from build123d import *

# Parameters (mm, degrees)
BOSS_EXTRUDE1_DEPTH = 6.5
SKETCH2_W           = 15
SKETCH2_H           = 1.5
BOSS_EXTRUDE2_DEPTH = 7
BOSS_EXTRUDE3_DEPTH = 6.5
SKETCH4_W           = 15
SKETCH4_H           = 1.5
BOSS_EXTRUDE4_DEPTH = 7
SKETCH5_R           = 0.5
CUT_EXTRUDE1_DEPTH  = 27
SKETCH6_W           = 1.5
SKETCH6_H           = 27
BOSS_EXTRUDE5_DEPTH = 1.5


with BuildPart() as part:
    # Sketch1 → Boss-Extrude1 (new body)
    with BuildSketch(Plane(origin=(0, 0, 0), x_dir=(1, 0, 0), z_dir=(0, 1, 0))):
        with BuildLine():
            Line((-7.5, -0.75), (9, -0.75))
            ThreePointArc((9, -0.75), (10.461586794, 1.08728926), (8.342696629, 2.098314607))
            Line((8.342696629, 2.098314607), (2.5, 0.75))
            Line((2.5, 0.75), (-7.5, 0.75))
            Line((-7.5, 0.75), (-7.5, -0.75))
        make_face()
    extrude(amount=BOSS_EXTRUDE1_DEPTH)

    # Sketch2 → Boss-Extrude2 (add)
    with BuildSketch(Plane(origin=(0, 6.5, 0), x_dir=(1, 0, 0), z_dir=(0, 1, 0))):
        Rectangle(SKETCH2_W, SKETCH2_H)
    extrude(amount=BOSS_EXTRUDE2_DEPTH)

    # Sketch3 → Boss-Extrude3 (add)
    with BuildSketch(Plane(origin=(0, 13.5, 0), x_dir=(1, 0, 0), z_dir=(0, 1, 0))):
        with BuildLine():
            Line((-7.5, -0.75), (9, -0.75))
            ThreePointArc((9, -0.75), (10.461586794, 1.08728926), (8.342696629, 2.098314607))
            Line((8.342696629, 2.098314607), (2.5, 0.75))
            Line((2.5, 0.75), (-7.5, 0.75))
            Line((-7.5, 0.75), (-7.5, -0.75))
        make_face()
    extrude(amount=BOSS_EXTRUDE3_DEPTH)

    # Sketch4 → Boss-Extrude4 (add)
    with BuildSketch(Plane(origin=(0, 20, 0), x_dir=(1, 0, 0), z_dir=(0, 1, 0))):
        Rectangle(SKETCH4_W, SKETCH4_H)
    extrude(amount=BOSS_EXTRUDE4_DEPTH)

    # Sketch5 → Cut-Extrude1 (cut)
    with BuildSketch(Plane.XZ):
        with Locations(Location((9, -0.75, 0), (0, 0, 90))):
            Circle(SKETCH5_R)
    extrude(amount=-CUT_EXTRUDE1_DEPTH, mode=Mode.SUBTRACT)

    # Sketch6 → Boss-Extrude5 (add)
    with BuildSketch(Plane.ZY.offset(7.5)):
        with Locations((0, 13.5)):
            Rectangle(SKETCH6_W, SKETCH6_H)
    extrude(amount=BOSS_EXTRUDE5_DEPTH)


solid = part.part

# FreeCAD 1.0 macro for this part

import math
import FreeCAD as App
import Part
import Sketcher

V = App.Vector
Q = App.Units.Quantity

doc = App.newDocument("Part")
body = doc.addObject("PartDesign::Body", "Body")

# Sketch on XZ plane
sketch1 = body.newObject("Sketcher::SketchObject", "Sketch")
sketch1.AttachmentSupport = (doc.getObject("XZ_Plane"), [""])
sketch1.MapMode = "FlatFace"
sketch1.addGeometry([
    Part.LineSegment(V(-7.5, 0.8, 0), V(9, 0.8, 0)),  # 0
    Part.ArcOfCircle(Part.Circle(V(9, -0.8, 0), V(0, 0, 1), 1.5), math.radians(-116), math.radians(90)),  # 1
    Part.LineSegment(V(8.3, -2.1, 0), V(2.5, -0.8, 0)),  # 2
    Part.LineSegment(V(2.5, -0.8, 0), V(-7.5, -0.8, 0)),  # 3
    Part.LineSegment(V(-7.5, -0.8, 0), V(-7.5, 0.8, 0)),  # 4
], False)
sketch1.addConstraint([
    Sketcher.Constraint("Tangent", 0, 2, 1, 2),
    Sketcher.Constraint("Coincident", 1, 1, 2, 1),
    Sketcher.Constraint("Coincident", 2, 2, 3, 1),
    Sketcher.Constraint("Coincident", 3, 2, 4, 1),
    Sketcher.Constraint("Coincident", 4, 2, 0, 1),
    Sketcher.Constraint("Horizontal", 0),
    Sketcher.Constraint("Horizontal", 3),
    Sketcher.Constraint("Vertical", 4),
    Sketcher.Constraint("Horizontal", 1, 3, 2, 2),
    Sketcher.Constraint("Radius", 1, Q("1.5 mm")),
    Sketcher.Constraint("DistanceX", 3, 2, 3, 1, Q("10 mm")),
    Sketcher.Constraint("DistanceX", 0, 1, 0, 2, Q("16.5 mm")),
    Sketcher.Constraint("DistanceX", -1, 1, 1, 3, Q("9 mm")),
    Sketcher.Constraint("DistanceY", 1, 3, -1, 1, Q("0.75 mm")),
    Sketcher.Constraint("Distance", 2, Q("5.996254 mm")),
])
pad1 = body.newObject("PartDesign::Pad", "Pad")
pad1.Profile = sketch1
pad1.Length = 6.5
pad1.Reversed = True

# Sketch on XZ plane
sketch2 = body.newObject("Sketcher::SketchObject", "Sketch001")
sketch2.AttachmentSupport = (doc.getObject("XZ_Plane"), [""])
sketch2.MapMode = "FlatFace"
sketch2.AttachmentOffset = App.Placement(V(0, 0, -6.5), App.Rotation())
sketch2.addGeometry([
    Part.LineSegment(V(-7.5, -0.8, 0), V(-7.5, 0.8, 0)),
    Part.LineSegment(V(-7.5, 0.8, 0), V(7.5, 0.8, 0)),
    Part.LineSegment(V(7.5, 0.8, 0), V(7.5, -0.8, 0)),
    Part.LineSegment(V(7.5, -0.8, 0), V(-7.5, -0.8, 0)),
], False)
sketch2.addConstraint([
    Sketcher.Constraint("Coincident", 0, 2, 1, 1),
    Sketcher.Constraint("Coincident", 1, 2, 2, 1),
    Sketcher.Constraint("Coincident", 2, 2, 3, 1),
    Sketcher.Constraint("Coincident", 3, 2, 0, 1),
    Sketcher.Constraint("Vertical", 0),
    Sketcher.Constraint("Horizontal", 1),
    Sketcher.Constraint("Vertical", 2),
    Sketcher.Constraint("Horizontal", 3),
    Sketcher.Constraint("Symmetric", 0, 2, 2, 2, -1, 1),
    Sketcher.Constraint("DistanceX", 1, 1, 1, 2, Q("15 mm")),
    Sketcher.Constraint("DistanceY", 0, 1, 0, 2, Q("1.5 mm")),
])
pad2 = body.newObject("PartDesign::Pad", "Pad001")
pad2.Profile = sketch2
pad2.Length = 7
pad2.Reversed = True

# Sketch on XZ plane
sketch3 = body.newObject("Sketcher::SketchObject", "Sketch002")
sketch3.AttachmentSupport = (doc.getObject("XZ_Plane"), [""])
sketch3.MapMode = "FlatFace"
sketch3.AttachmentOffset = App.Placement(V(0, 0, -13.5), App.Rotation())
sketch3.addGeometry([
    Part.LineSegment(V(-7.5, 0.8, 0), V(9, 0.8, 0)),  # 0
    Part.ArcOfCircle(Part.Circle(V(9, -0.8, 0), V(0, 0, 1), 1.5), math.radians(-116), math.radians(90)),  # 1
    Part.LineSegment(V(8.3, -2.1, 0), V(2.5, -0.8, 0)),  # 2
    Part.LineSegment(V(2.5, -0.8, 0), V(-7.5, -0.8, 0)),  # 3
    Part.LineSegment(V(-7.5, -0.8, 0), V(-7.5, 0.8, 0)),  # 4
], False)
sketch3.addConstraint([
    Sketcher.Constraint("Tangent", 0, 2, 1, 2),
    Sketcher.Constraint("Coincident", 1, 1, 2, 1),
    Sketcher.Constraint("Coincident", 2, 2, 3, 1),
    Sketcher.Constraint("Coincident", 3, 2, 4, 1),
    Sketcher.Constraint("Coincident", 4, 2, 0, 1),
    Sketcher.Constraint("Horizontal", 0),
    Sketcher.Constraint("Horizontal", 3),
    Sketcher.Constraint("Vertical", 4),
    Sketcher.Constraint("Horizontal", 1, 3, 2, 2),
    Sketcher.Constraint("Radius", 1, Q("1.5 mm")),
    Sketcher.Constraint("DistanceX", 3, 2, 3, 1, Q("10 mm")),
    Sketcher.Constraint("DistanceX", 0, 1, 0, 2, Q("16.5 mm")),
    Sketcher.Constraint("DistanceX", -1, 1, 1, 3, Q("9 mm")),
    Sketcher.Constraint("DistanceY", 1, 3, -1, 1, Q("0.75 mm")),
    Sketcher.Constraint("Distance", 2, Q("5.996254 mm")),
])
pad3 = body.newObject("PartDesign::Pad", "Pad002")
pad3.Profile = sketch3
pad3.Length = 6.5
pad3.Reversed = True

# Sketch on XZ plane
sketch4 = body.newObject("Sketcher::SketchObject", "Sketch003")
sketch4.AttachmentSupport = (doc.getObject("XZ_Plane"), [""])
sketch4.MapMode = "FlatFace"
sketch4.AttachmentOffset = App.Placement(V(0, 0, -20), App.Rotation())
sketch4.addGeometry([
    Part.LineSegment(V(-7.5, -0.8, 0), V(-7.5, 0.8, 0)),
    Part.LineSegment(V(-7.5, 0.8, 0), V(7.5, 0.8, 0)),
    Part.LineSegment(V(7.5, 0.8, 0), V(7.5, -0.8, 0)),
    Part.LineSegment(V(7.5, -0.8, 0), V(-7.5, -0.8, 0)),
], False)
sketch4.addConstraint([
    Sketcher.Constraint("Coincident", 0, 2, 1, 1),
    Sketcher.Constraint("Coincident", 1, 2, 2, 1),
    Sketcher.Constraint("Coincident", 2, 2, 3, 1),
    Sketcher.Constraint("Coincident", 3, 2, 0, 1),
    Sketcher.Constraint("Vertical", 0),
    Sketcher.Constraint("Horizontal", 1),
    Sketcher.Constraint("Vertical", 2),
    Sketcher.Constraint("Horizontal", 3),
    Sketcher.Constraint("Symmetric", 0, 2, 2, 2, -1, 1),
    Sketcher.Constraint("DistanceX", 1, 1, 1, 2, Q("15 mm")),
    Sketcher.Constraint("DistanceY", 0, 1, 0, 2, Q("1.5 mm")),
])
pad4 = body.newObject("PartDesign::Pad", "Pad003")
pad4.Profile = sketch4
pad4.Length = 7
pad4.Reversed = True

# Sketch on XZ plane
sketch5 = body.newObject("Sketcher::SketchObject", "Sketch004")
sketch5.AttachmentSupport = (doc.getObject("XZ_Plane"), [""])
sketch5.MapMode = "FlatFace"
sketch5.addGeometry(Part.Circle(V(9, -0.8, 0), V(0, 0, 1), 0.5), False)
sketch5.addConstraint([
    Sketcher.Constraint("Diameter", 0, Q("1 mm")),
    Sketcher.Constraint("DistanceX", -1, 1, 0, 3, Q("9 mm")),
    Sketcher.Constraint("DistanceY", 0, 3, -1, 1, Q("0.75 mm")),
])
pocket1 = body.newObject("PartDesign::Pocket", "Pocket")
pocket1.Profile = sketch5
pocket1.Length = 27

# Sketch on YZ plane
sketch6 = body.newObject("Sketcher::SketchObject", "Sketch005")
sketch6.AttachmentSupport = (doc.getObject("YZ_Plane"), [""])
sketch6.MapMode = "FlatFace"
sketch6.AttachmentOffset = App.Placement(V(0, 0, -7.5), App.Rotation())
sketch6.addGeometry([
    Part.LineSegment(V(27, -0.8, 0), V(0, -0.8, 0)),
    Part.LineSegment(V(0, -0.8, 0), V(0, 0.8, 0)),
    Part.LineSegment(V(0, 0.8, 0), V(27, 0.8, 0)),
    Part.LineSegment(V(27, 0.8, 0), V(27, -0.8, 0)),
], False)
sketch6.addConstraint([
    Sketcher.Constraint("Coincident", 0, 2, 1, 1),
    Sketcher.Constraint("Coincident", 1, 2, 2, 1),
    Sketcher.Constraint("Coincident", 2, 2, 3, 1),
    Sketcher.Constraint("Coincident", 3, 2, 0, 1),
    Sketcher.Constraint("Horizontal", 0),
    Sketcher.Constraint("Vertical", 1),
    Sketcher.Constraint("Horizontal", 2),
    Sketcher.Constraint("Vertical", 3),
    Sketcher.Constraint("Symmetric", 0, 2, 1, 2, -1, 1),
    Sketcher.Constraint("DistanceX", 0, 2, 0, 1, Q("27 mm")),
    Sketcher.Constraint("DistanceY", 1, 1, 1, 2, Q("1.5 mm")),
])
pad5 = body.newObject("PartDesign::Pad", "Pad004")
pad5.Profile = sketch6
pad5.Length = 1.5
pad5.Reversed = True

doc.recompute()
